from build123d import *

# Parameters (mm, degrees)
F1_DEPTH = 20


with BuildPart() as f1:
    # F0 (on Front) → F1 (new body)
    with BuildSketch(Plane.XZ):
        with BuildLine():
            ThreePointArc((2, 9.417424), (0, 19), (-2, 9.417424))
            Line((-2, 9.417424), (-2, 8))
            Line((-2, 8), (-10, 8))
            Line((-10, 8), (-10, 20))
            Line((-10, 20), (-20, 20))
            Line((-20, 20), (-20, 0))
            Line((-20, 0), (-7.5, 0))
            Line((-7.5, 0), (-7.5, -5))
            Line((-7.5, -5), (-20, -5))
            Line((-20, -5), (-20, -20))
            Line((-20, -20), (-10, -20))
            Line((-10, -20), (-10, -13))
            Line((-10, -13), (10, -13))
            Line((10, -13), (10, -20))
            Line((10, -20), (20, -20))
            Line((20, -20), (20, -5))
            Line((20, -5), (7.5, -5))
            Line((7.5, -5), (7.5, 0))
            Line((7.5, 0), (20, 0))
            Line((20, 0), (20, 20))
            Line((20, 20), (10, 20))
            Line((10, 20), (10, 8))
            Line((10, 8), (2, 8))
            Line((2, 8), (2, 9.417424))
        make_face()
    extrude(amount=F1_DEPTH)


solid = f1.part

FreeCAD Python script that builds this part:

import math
import FreeCAD as App
import Part
import Sketcher
from FreeCAD import Vector

doc = App.newDocument("Part")
body = doc.addObject("PartDesign::Body", "Body")

# Sketch on XZ plane
sketch1 = body.newObject("Sketcher::SketchObject", "Sketch")
sketch1.AttachmentSupport = (doc.getObject("XZ_Plane"), [""])
sketch1.MapMode = "FlatFace"
sketch1.addGeometry([
    Part.ArcOfCircle(Part.Circle(Vector(0, 14, 0), Vector(0, 0, 1), 5), math.radians(-66), math.radians(246)),  # 0
    Part.LineSegment(Vector(-2, 9.4, 0), Vector(-2, 8, 0)),  # 1
    Part.LineSegment(Vector(-2, 8, 0), Vector(-10, 8, 0)),  # 2
    Part.LineSegment(Vector(-10, 8, 0), Vector(-10, 20, 0)),  # 3
    Part.LineSegment(Vector(-10, 20, 0), Vector(-20, 20, 0)),  # 4
    Part.LineSegment(Vector(-20, 20, 0), Vector(-20, 0, 0)),  # 5
    Part.LineSegment(Vector(-20, 0, 0), Vector(-7.5, 0, 0)),  # 6
    Part.LineSegment(Vector(-7.5, 0, 0), Vector(-7.5, -5, 0)),  # 7
    Part.LineSegment(Vector(-7.5, -5, 0), Vector(-20, -5, 0)),  # 8
    Part.LineSegment(Vector(-20, -5, 0), Vector(-20, -20, 0)),  # 9
    Part.LineSegment(Vector(-20, -20, 0), Vector(-10, -20, 0)),  # 10
    Part.LineSegment(Vector(-10, -20, 0), Vector(-10, -13, 0)),  # 11
    Part.LineSegment(Vector(-10, -13, 0), Vector(10, -13, 0)),  # 12
    Part.LineSegment(Vector(10, -13, 0), Vector(10, -20, 0)),  # 13
    Part.LineSegment(Vector(10, -20, 0), Vector(20, -20, 0)),  # 14
    Part.LineSegment(Vector(20, -20, 0), Vector(20, -5, 0)),  # 15
    Part.LineSegment(Vector(20, -5, 0), Vector(7.5, -5, 0)),  # 16
    Part.LineSegment(Vector(7.5, -5, 0), Vector(7.5, 0, 0)),  # 17
    Part.LineSegment(Vector(7.5, 0, 0), Vector(20, 0, 0)),  # 18
    Part.LineSegment(Vector(20, 0, 0), Vector(20, 20, 0)),  # 19
    Part.LineSegment(Vector(20, 20, 0), Vector(10, 20, 0)),  # 20
    Part.LineSegment(Vector(10, 20, 0), Vector(10, 8, 0)),  # 21
    Part.LineSegment(Vector(10, 8, 0), Vector(2, 8, 0)),  # 22
    Part.LineSegment(Vector(2, 8, 0), Vector(2, 9.4, 0)),  # 23
], False)
sketch1.addConstraint([
    Sketcher.Constraint("Coincident", 0, 2, 1, 1),
    Sketcher.Constraint("Coincident", 1, 2, 2, 1),
    Sketcher.Constraint("Coincident", 2, 2, 3, 1),
    Sketcher.Constraint("Coincident", 3, 2, 4, 1),
    Sketcher.Constraint("Coincident", 4, 2, 5, 1),
    Sketcher.Constraint("Coincident", 5, 2, 6, 1),
    Sketcher.Constraint("Coincident", 6, 2, 7, 1),
    Sketcher.Constraint("Coincident", 7, 2, 8, 1),
    Sketcher.Constraint("Coincident", 8, 2, 9, 1),
    Sketcher.Constraint("Coincident", 9, 2, 10, 1),
    Sketcher.Constraint("Coincident", 10, 2, 11, 1),
    Sketcher.Constraint("Coincident", 11, 2, 12, 1),
    Sketcher.Constraint("Coincident", 12, 2, 13, 1),
    Sketcher.Constraint("Coincident", 13, 2, 14, 1),
    Sketcher.Constraint("Coincident", 14, 2, 15, 1),
    Sketcher.Constraint("Coincident", 15, 2, 16, 1),
    Sketcher.Constraint("Coincident", 16, 2, 17, 1),
    Sketcher.Constraint("Coincident", 17, 2, 18, 1),
    Sketcher.Constraint("Coincident", 18, 2, 19, 1),
    Sketcher.Constraint("Coincident", 19, 2, 20, 1),
    Sketcher.Constraint("Coincident", 20, 2, 21, 1),
    Sketcher.Constraint("Coincident", 21, 2, 22, 1),
    Sketcher.Constraint("Coincident", 22, 2, 23, 1),
    Sketcher.Constraint("Coincident", 23, 2, 0, 1),
    Sketcher.Constraint("Vertical", 1),
    Sketcher.Constraint("Horizontal", 2),
    Sketcher.Constraint("Vertical", 3),
    Sketcher.Constraint("Horizontal", 4),
    Sketcher.Constraint("Vertical", 5),
    Sketcher.Constraint("Horizontal", 6),
    Sketcher.Constraint("Vertical", 7),
    Sketcher.Constraint("Horizontal", 8),
    Sketcher.Constraint("Vertical", 9),
    Sketcher.Constraint("Horizontal", 10),
    Sketcher.Constraint("Vertical", 11),
    Sketcher.Constraint("Horizontal", 12),
    Sketcher.Constraint("Vertical", 13),
    Sketcher.Constraint("Horizontal", 14),
    Sketcher.Constraint("Vertical", 15),
    Sketcher.Constraint("Horizontal", 16),
    Sketcher.Constraint("Vertical", 17),
    Sketcher.Constraint("Horizontal", 18),
    Sketcher.Constraint("Vertical", 19),
    Sketcher.Constraint("Horizontal", 20),
    Sketcher.Constraint("Vertical", 21),
    Sketcher.Constraint("Horizontal", 22),
    Sketcher.Constraint("Vertical", 23),
    Sketcher.Constraint("Symmetric", 3, 2, 13, 2, -1, 1),
    Sketcher.Constraint("Symmetric", 6, 2, 17, 2, -1, 1),
    Sketcher.Constraint("Symmetric", 9, 2, 19, 2, -1, 1),
    Sketcher.Constraint("Symmetric", 10, 2, 13, 2, -2),
    Sketcher.Constraint("Symmetric", 8, 2, 15, 2, -2),
    Sketcher.Constraint("Symmetric", 5, 2, 18, 2, -2),
    Sketcher.Constraint("Symmetric", 2, 2, 21, 2, -2),
    Sketcher.Constraint("Symmetric", 0, 2, 23, 2, -2),
    Sketcher.Constraint("Equal", 12, 5),
    Sketcher.Constraint("Radius", 0, 5.0),
    Sketcher.Constraint("DistanceX", 2, 2, 2, 1, 8.0),
    Sketcher.Constraint("DistanceX", 4, 2, 4, 1, 10.0),
    Sketcher.Constraint("DistanceX", 12, 1, 12, 2, 20.0),
    Sketcher.Constraint("DistanceY", 3, 1, 3, 2, 12.0),
    Sketcher.Constraint("DistanceY", 7, 2, 7, 1, 5.0),
    Sketcher.Constraint("DistanceY", 11, 1, 11, 2, 7.0),
    Sketcher.Constraint("DistanceX", 6, 1, 6, 2, 12.5),
    Sketcher.Constraint("DistanceY", -1, 1, 0, 3, 14.0),
])
pad1 = body.newObject("PartDesign::Pad", "Pad")
pad1.Profile = sketch1
pad1.Length = 20

doc.recompute()
